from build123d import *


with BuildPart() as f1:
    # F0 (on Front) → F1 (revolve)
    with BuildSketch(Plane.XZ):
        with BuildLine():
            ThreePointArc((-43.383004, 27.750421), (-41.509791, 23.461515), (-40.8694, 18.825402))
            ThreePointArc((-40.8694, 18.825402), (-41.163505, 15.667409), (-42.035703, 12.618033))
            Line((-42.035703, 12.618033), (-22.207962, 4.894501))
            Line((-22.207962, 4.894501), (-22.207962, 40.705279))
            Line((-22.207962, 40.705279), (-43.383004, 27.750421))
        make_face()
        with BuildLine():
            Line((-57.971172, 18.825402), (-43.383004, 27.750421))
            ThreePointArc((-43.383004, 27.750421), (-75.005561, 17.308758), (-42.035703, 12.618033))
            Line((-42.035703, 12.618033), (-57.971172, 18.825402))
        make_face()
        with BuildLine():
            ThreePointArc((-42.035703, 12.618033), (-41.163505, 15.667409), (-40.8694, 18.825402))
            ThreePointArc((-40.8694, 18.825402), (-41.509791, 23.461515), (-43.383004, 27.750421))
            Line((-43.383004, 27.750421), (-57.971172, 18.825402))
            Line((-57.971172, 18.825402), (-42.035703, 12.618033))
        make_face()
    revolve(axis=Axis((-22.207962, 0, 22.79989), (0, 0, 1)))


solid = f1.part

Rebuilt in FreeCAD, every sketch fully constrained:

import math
import FreeCAD as App
import Part
import Sketcher

V = App.Vector
Q = App.Units.Quantity

doc = App.newDocument("Part")
body = doc.addObject("PartDesign::Body", "Body")

sketch1 = body.newObject("Sketcher::SketchObject", "Sketch")
sketch1.AttachmentSupport = (doc.getObject("XZ_Plane"), [""])
sketch1.MapMode = "FlatFace"
sketch1.addGeometry([
    Part.LineSegment(V(-42, 13, 0), V(-22, 5, 0)),
    Part.LineSegment(V(-22, 5, 0), V(-22, 41, 0)),
    Part.LineSegment(V(-22, 41, 0), V(-43, 28, 0)),
    Part.ArcOfCircle(Part.Circle(V(-58, 19, 0), V(0, 0, 1), 17), math.radians(31), math.radians(339)),
], False)
sketch1.addGeometry(Part.LineSegment(V(-22, 5, 0), V(-22, 41, 0)), True)
sketch1.addConstraint([
    Sketcher.Constraint("Coincident", 0, 2, 1, 1),
    Sketcher.Constraint("Coincident", 1, 2, 2, 1),
    Sketcher.Constraint("Coincident", 2, 2, 3, 1),
    Sketcher.Constraint("Coincident", 3, 2, 0, 1),
    Sketcher.Constraint("Vertical", 1),
    Sketcher.Constraint("Vertical", 4),
    Sketcher.Constraint("Coincident", 4, 1, 0, 2),
    Sketcher.Constraint("Equal", 1, 4),
    Sketcher.Constraint("Radius", 3, Q("17.101772 mm")),
    Sketcher.Constraint("DistanceY", -1, 1, 0, 2, Q("4.894501 mm")),
    Sketcher.Constraint("DistanceY", 0, 2, 3, 3, Q("13.930901 mm")),
    Sketcher.Constraint("DistanceX", 2, 2, 3, 2, Q("1.347301 mm")),
    Sketcher.Constraint("DistanceY", 1, 1, 1, 2, Q("35.810778 mm")),
    Sketcher.Constraint("DistanceX", 0, 2, -1, 1, Q("22.207962 mm")),
    Sketcher.Constraint("DistanceY", -1, 1, 2, 2, Q("27.750421 mm")),
    Sketcher.Constraint("DistanceX", 3, 3, 0, 2, Q("35.76321 mm")),
])
revolution = body.newObject("PartDesign::Revolution", "Revolution")
revolution.Profile = sketch1
revolution.ReferenceAxis = (sketch1, ["Axis0"])
revolution.Angle = 360

doc.recompute()
